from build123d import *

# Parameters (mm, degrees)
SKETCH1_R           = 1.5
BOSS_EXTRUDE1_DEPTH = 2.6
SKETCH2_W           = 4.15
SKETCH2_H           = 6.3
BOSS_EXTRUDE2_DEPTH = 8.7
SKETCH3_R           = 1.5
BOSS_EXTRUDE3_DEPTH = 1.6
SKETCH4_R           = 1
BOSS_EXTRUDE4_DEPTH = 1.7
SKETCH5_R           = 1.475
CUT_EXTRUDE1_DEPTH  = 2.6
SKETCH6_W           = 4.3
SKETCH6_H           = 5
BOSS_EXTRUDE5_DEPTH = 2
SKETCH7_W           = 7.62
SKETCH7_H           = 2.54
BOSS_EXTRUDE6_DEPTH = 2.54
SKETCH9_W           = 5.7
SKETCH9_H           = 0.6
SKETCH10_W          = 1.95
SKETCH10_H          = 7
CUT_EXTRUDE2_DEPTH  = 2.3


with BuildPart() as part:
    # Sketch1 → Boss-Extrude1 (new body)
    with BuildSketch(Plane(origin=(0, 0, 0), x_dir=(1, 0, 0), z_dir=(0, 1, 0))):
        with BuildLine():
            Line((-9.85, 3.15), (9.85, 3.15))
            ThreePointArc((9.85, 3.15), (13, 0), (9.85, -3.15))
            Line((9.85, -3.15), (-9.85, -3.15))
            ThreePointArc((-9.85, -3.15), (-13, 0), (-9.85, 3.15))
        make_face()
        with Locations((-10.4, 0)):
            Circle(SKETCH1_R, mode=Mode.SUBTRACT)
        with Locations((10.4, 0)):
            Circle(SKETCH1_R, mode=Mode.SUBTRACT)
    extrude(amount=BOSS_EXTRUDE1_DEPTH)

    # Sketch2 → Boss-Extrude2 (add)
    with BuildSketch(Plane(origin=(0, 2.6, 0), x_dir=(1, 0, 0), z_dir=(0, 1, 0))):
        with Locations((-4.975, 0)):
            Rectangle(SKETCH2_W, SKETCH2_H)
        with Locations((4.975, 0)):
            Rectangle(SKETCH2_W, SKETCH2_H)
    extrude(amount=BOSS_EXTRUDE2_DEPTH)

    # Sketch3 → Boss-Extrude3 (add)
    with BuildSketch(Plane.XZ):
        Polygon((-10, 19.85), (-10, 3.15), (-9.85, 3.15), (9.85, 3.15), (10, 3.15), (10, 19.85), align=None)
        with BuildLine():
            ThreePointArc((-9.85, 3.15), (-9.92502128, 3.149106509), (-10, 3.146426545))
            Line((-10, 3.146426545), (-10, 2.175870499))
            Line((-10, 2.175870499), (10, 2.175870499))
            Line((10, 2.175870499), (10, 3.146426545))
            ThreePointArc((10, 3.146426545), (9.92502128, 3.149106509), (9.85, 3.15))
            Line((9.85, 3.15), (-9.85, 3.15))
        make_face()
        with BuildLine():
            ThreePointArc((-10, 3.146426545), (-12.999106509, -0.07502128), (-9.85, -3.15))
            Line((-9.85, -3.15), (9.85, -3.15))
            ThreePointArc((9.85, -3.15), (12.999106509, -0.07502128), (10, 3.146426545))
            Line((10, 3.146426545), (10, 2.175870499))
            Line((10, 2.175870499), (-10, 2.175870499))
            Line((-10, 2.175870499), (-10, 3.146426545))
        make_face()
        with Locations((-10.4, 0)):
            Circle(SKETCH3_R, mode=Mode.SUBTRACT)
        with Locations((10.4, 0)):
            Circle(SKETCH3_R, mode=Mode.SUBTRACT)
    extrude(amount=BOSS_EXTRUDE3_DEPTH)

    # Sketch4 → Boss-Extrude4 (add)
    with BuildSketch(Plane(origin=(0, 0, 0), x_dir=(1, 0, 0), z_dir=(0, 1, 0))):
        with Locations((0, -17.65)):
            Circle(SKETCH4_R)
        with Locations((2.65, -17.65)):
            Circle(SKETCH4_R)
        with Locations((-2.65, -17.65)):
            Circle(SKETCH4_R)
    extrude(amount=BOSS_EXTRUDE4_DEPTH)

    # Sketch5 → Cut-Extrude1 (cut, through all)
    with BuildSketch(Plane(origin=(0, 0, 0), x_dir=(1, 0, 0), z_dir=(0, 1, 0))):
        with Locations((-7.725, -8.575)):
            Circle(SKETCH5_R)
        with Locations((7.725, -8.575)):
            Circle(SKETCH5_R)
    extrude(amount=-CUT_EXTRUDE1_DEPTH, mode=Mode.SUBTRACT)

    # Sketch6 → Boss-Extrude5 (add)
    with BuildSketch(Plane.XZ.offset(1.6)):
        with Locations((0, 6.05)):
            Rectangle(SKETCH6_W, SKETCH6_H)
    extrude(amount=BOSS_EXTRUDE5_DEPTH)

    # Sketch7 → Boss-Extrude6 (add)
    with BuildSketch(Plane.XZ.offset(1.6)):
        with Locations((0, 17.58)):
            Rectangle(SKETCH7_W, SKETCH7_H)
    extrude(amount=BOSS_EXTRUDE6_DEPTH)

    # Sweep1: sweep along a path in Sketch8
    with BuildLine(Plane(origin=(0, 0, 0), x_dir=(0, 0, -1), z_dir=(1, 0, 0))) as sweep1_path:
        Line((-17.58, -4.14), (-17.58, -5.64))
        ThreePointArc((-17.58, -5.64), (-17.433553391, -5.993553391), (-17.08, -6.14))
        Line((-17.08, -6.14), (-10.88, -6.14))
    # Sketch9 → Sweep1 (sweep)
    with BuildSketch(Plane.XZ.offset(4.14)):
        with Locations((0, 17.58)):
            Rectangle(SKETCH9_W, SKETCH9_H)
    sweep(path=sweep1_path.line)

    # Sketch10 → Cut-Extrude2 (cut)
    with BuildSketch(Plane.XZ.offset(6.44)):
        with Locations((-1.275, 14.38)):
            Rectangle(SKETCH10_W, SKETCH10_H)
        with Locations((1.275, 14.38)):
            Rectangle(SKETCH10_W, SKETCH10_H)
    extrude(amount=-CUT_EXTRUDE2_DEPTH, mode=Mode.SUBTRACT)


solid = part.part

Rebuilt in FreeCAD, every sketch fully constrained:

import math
import FreeCAD as App
import Part
import Sketcher
Q = App.Units.Quantity

doc = App.newDocument("Part")
body = doc.addObject("PartDesign::Body", "Body")

sketch1 = body.newObject("Sketcher::SketchObject", "Sketch")
sketch1.AttachmentSupport = (doc.getObject("XZ_Plane"), [""])
sketch1.MapMode = "FlatFace"
sketch1.addGeometry([
    Part.LineSegment(App.Vector(9.85, -3.15, 0), App.Vector(-9.85, -3.15, 0)),
    Part.ArcOfCircle(Part.Circle(App.Vector(-9.85, 0, 0), App.Vector(0, 0, 1), 3.15), math.radians(90), math.radians(270)),
    Part.LineSegment(App.Vector(-9.85, 3.15, 0), App.Vector(9.85, 3.15, 0)),
    Part.ArcOfCircle(Part.Circle(App.Vector(9.85, 0, 0), App.Vector(0, 0, 1), 3.15), math.radians(-90), math.radians(90)),
    Part.Circle(App.Vector(10.4, 0, 0), App.Vector(0, 0, 1), 1.5),
    Part.Circle(App.Vector(-10.4, 0, 0), App.Vector(0, 0, 1), 1.5),
], False)
sketch1.addConstraint([
    Sketcher.Constraint("Tangent", 0, 2, 1, 2),
    Sketcher.Constraint("Tangent", 1, 1, 2, 1),
    Sketcher.Constraint("Tangent", 2, 2, 3, 2),
    Sketcher.Constraint("Tangent", 3, 1, 0, 1),
    Sketcher.Constraint("Horizontal", 0),
    Sketcher.Constraint("Horizontal", 2),
    Sketcher.Constraint("Equal", 4, 5),
    Sketcher.Constraint("Symmetric", 1, 3, 3, 3, -1, 1),
    Sketcher.Constraint("Symmetric", 4, 3, 5, 3, -1, 1),
    Sketcher.Constraint("PointOnObject", 4, 3, -1),
    Sketcher.Constraint("Diameter", 4, Q("3 mm")),
    Sketcher.Constraint("Radius", 1, Q("3.15 mm")),
    Sketcher.Constraint("DistanceX", 0, 2, 0, 1, Q("19.7 mm")),
    Sketcher.Constraint("DistanceX", -1, 1, 4, 3, Q("10.4 mm")),
])
pad1 = body.newObject("PartDesign::Pad", "Pad")
pad1.Profile = sketch1
pad1.Length = 2.6
pad1.Reversed = True

sketch2 = body.newObject("Sketcher::SketchObject", "Sketch001")
sketch2.AttachmentSupport = (doc.getObject("XZ_Plane"), [""])
sketch2.MapMode = "FlatFace"
sketch2.AttachmentOffset = App.Placement(App.Vector(0, 0, -2.6), App.Rotation())
sketch2.addGeometry([
    Part.LineSegment(App.Vector(-7.05, -3.15, 0), App.Vector(-7.05, 3.15, 0)),
    Part.LineSegment(App.Vector(-7.05, 3.15, 0), App.Vector(-2.9, 3.15, 0)),
    Part.LineSegment(App.Vector(-2.9, 3.15, 0), App.Vector(-2.9, -3.15, 0)),
    Part.LineSegment(App.Vector(-2.9, -3.15, 0), App.Vector(-7.05, -3.15, 0)),
    Part.LineSegment(App.Vector(2.9, -3.15, 0), App.Vector(2.9, 3.15, 0)),
    Part.LineSegment(App.Vector(2.9, 3.15, 0), App.Vector(7.05, 3.15, 0)),
    Part.LineSegment(App.Vector(7.05, 3.15, 0), App.Vector(7.05, -3.15, 0)),
    Part.LineSegment(App.Vector(7.05, -3.15, 0), App.Vector(2.9, -3.15, 0)),
], False)
sketch2.addConstraint([
    Sketcher.Constraint("Coincident", 0, 2, 1, 1),
    Sketcher.Constraint("Coincident", 1, 2, 2, 1),
    Sketcher.Constraint("Coincident", 2, 2, 3, 1),
    Sketcher.Constraint("Coincident", 3, 2, 0, 1),
    Sketcher.Constraint("Coincident", 4, 2, 5, 1),
    Sketcher.Constraint("Coincident", 5, 2, 6, 1),
    Sketcher.Constraint("Coincident", 6, 2, 7, 1),
    Sketcher.Constraint("Coincident", 7, 2, 4, 1),
    Sketcher.Constraint("Vertical", 0),
    Sketcher.Constraint("Horizontal", 1),
    Sketcher.Constraint("Vertical", 2),
    Sketcher.Constraint("Horizontal", 3),
    Sketcher.Constraint("Vertical", 4),
    Sketcher.Constraint("Horizontal", 5),
    Sketcher.Constraint("Vertical", 6),
    Sketcher.Constraint("Horizontal", 7),
    Sketcher.Constraint("Symmetric", 2, 2, 4, 2, -1, 1),
    Sketcher.Constraint("Symmetric", 0, 2, 6, 2, -1, 1),
    Sketcher.Constraint("Horizontal", 1, 2, 4, 2),
    Sketcher.Constraint("DistanceY", 0, 1, 0, 2, Q("6.3 mm")),
    Sketcher.Constraint("DistanceX", 1, 1, 1, 2, Q("4.15 mm")),
    Sketcher.Constraint("DistanceX", 1, 2, -1, 1, Q("2.9 mm")),
])
pad2 = body.newObject("PartDesign::Pad", "Pad001")
pad2.Profile = sketch2
pad2.Length = 8.7
pad2.Reversed = True

sketch3 = body.newObject("Sketcher::SketchObject", "Sketch002")
sketch3.AttachmentSupport = (doc.getObject("XZ_Plane"), [""])
sketch3.MapMode = "FlatFace"
sketch3.addGeometry([
    Part.LineSegment(App.Vector(-10, 19.85, 0), App.Vector(-10, 3.15, 0)),
    Part.LineSegment(App.Vector(-10, 3.15, 0), App.Vector(-9.85, 3.15, 0)),
    Part.ArcOfCircle(Part.Circle(App.Vector(-9.85, -0.000002, 0), App.Vector(0, 0, 1), 3.150002), math.radians(90.000001), math.radians(92.729401)),
    Part.ArcOfCircle(Part.Circle(App.Vector(-9.85, 0, 0), App.Vector(0, 0, 1), 3.15), math.radians(92.729403), math.radians(270)),
    Part.LineSegment(App.Vector(-9.85, -3.15, 0), App.Vector(9.85, -3.15, 0)),
    Part.ArcOfCircle(Part.Circle(App.Vector(9.85, 0, 0), App.Vector(0, 0, 1), 3.15), math.radians(-90), math.radians(87.270597)),
    Part.ArcOfCircle(Part.Circle(App.Vector(9.85, -0.000002, 0), App.Vector(0, 0, 1), 3.150002), math.radians(87.270599), math.radians(89.999999)),
    Part.LineSegment(App.Vector(9.85, 3.15, 0), App.Vector(10, 3.15, 0)),
    Part.LineSegment(App.Vector(10, 3.15, 0), App.Vector(10, 19.85, 0)),
    Part.LineSegment(App.Vector(10, 19.85, 0), App.Vector(-10, 19.85, 0)),
    Part.Circle(App.Vector(-10.4, 0, 0), App.Vector(0, 0, 1), 1.5),
    Part.Circle(App.Vector(10.4, 0, 0), App.Vector(0, 0, 1), 1.5),
], False)
sketch3.addConstraint([
    Sketcher.Constraint("Coincident", 0, 2, 1, 1),
    Sketcher.Constraint("Tangent", 1, 2, 2, 1),
    Sketcher.Constraint("Tangent", 2, 2, 3, 1),
    Sketcher.Constraint("Tangent", 3, 2, 4, 1),
    Sketcher.Constraint("Tangent", 4, 2, 5, 1),
    Sketcher.Constraint("Tangent", 5, 2, 6, 1),
    Sketcher.Constraint("Tangent", 6, 2, 7, 1),
    Sketcher.Constraint("Coincident", 7, 2, 8, 1),
    Sketcher.Constraint("Coincident", 8, 2, 9, 1),
    Sketcher.Constraint("Coincident", 9, 2, 0, 1),
    Sketcher.Constraint("Vertical", 0),
    Sketcher.Constraint("Horizontal", 1),
    Sketcher.Constraint("Horizontal", 4),
    Sketcher.Constraint("Horizontal", 7),
    Sketcher.Constraint("Vertical", 8),
    Sketcher.Constraint("Horizontal", 9),
    Sketcher.Constraint("Equal", 3, 5),
    Sketcher.Constraint("Equal", 2, 6),
    Sketcher.Constraint("Equal", 10, 11),
    Sketcher.Constraint("Symmetric", 2, 3, 5, 3, -1, 1),
    Sketcher.Constraint("Symmetric", 10, 3, 11, 3, -1, 1),
    Sketcher.Constraint("PointOnObject", 3, 3, -1),
    Sketcher.Constraint("PointOnObject", 10, 3, -1),
    Sketcher.Constraint("Horizontal", 2, 2, 5, 2),
    Sketcher.Constraint("Vertical", 0, 2, 2, 2),
    Sketcher.Constraint("Vertical", 5, 2, 7, 2),
    Sketcher.Constraint("Diameter", 10, Q("3 mm")),
    Sketcher.Constraint("DistanceX", 9, 2, 9, 1, Q("20 mm")),
    Sketcher.Constraint("Radius", 3, Q("3.15 mm")),
    Sketcher.Constraint("DistanceX", 4, 1, 4, 2, Q("19.7 mm")),
    Sketcher.Constraint("DistanceY", 0, 2, 0, 1, Q("16.7 mm")),
    Sketcher.Constraint("DistanceX", 10, 3, -1, 1, Q("10.4 mm")),
])
pad3 = body.newObject("PartDesign::Pad", "Pad002")
pad3.Profile = sketch3
pad3.Length = 1.6

sketch4 = body.newObject("Sketcher::SketchObject", "Sketch003")
sketch4.AttachmentSupport = (doc.getObject("XZ_Plane"), [""])
sketch4.MapMode = "FlatFace"
sketch4.addGeometry([
    Part.Circle(App.Vector(0, 17.65, 0), App.Vector(0, 0, 1), 1),
    Part.Circle(App.Vector(2.65, 17.65, 0), App.Vector(0, 0, 1), 1),
    Part.Circle(App.Vector(-2.65, 17.65, 0), App.Vector(0, 0, 1), 1),
], False)
sketch4.addConstraint([
    Sketcher.Constraint("Equal", 0, 1),
    Sketcher.Constraint("Equal", 1, 2),
    Sketcher.Constraint("Symmetric", 1, 3, 2, 3, -2),
    Sketcher.Constraint("PointOnObject", 0, 3, -2),
    Sketcher.Constraint("Horizontal", 0, 3, 1, 3),
    Sketcher.Constraint("Diameter", 0, Q("2 mm")),
    Sketcher.Constraint("DistanceX", 2, 3, 1, 3, Q("5.3 mm")),
    Sketcher.Constraint("DistanceY", -1, 1, 0, 3, Q("17.65 mm")),
])
pad4 = body.newObject("PartDesign::Pad", "Pad003")
pad4.Profile = sketch4
pad4.Length = 1.7
pad4.Reversed = True

sketch5 = body.newObject("Sketcher::SketchObject", "Sketch004")
sketch5.AttachmentSupport = (doc.getObject("XZ_Plane"), [""])
sketch5.MapMode = "FlatFace"
sketch5.addGeometry([
    Part.Circle(App.Vector(-7.725, 8.575, 0), App.Vector(0, 0, 1), 1.475),
    Part.Circle(App.Vector(7.725, 8.575, 0), App.Vector(0, 0, 1), 1.475),
], False)
sketch5.addConstraint([
    Sketcher.Constraint("Equal", 0, 1),
    Sketcher.Constraint("Symmetric", 0, 3, 1, 3, -2),
    Sketcher.Constraint("Diameter", 0, Q("2.95 mm")),
    Sketcher.Constraint("DistanceX", 0, 3, 1, 3, Q("15.45 mm")),
    Sketcher.Constraint("DistanceY", -1, 1, 0, 3, Q("8.575 mm")),
])
pocket1 = body.newObject("PartDesign::Pocket", "Pocket")
pocket1.Profile = sketch5
pocket1.Type = "ThroughAll"
pocket1.Reversed = True

sketch6 = body.newObject("Sketcher::SketchObject", "Sketch005")
sketch6.AttachmentSupport = (doc.getObject("XZ_Plane"), [""])
sketch6.MapMode = "FlatFace"
sketch6.AttachmentOffset = App.Placement(App.Vector(0, 0, 1.6), App.Rotation())
sketch6.addGeometry([
    Part.LineSegment(App.Vector(-2.15, 8.55, 0), App.Vector(-2.15, 3.55, 0)),
    Part.LineSegment(App.Vector(-2.15, 3.55, 0), App.Vector(2.15, 3.55, 0)),
    Part.LineSegment(App.Vector(2.15, 3.55, 0), App.Vector(2.15, 8.55, 0)),
    Part.LineSegment(App.Vector(2.15, 8.55, 0), App.Vector(-2.15, 8.55, 0)),
], False)
sketch6.addConstraint([
    Sketcher.Constraint("Coincident", 0, 2, 1, 1),
    Sketcher.Constraint("Coincident", 1, 2, 2, 1),
    Sketcher.Constraint("Coincident", 2, 2, 3, 1),
    Sketcher.Constraint("Coincident", 3, 2, 0, 1),
    Sketcher.Constraint("Vertical", 0),
    Sketcher.Constraint("Horizontal", 1),
    Sketcher.Constraint("Vertical", 2),
    Sketcher.Constraint("Horizontal", 3),
    Sketcher.Constraint("DistanceY", 0, 2, 0, 1, Q("5 mm")),
    Sketcher.Constraint("DistanceX", 1, 1, 1, 2, Q("4.3 mm")),
    Sketcher.Constraint("DistanceX", 0, 2, -1, 1, Q("2.15 mm")),
    Sketcher.Constraint("DistanceY", -1, 1, 0, 2, Q("3.55 mm")),
])
pad5 = body.newObject("PartDesign::Pad", "Pad004")
pad5.Profile = sketch6
pad5.Length = 2

sketch7 = body.newObject("Sketcher::SketchObject", "Sketch006")
sketch7.AttachmentSupport = (doc.getObject("XZ_Plane"), [""])
sketch7.MapMode = "FlatFace"
sketch7.AttachmentOffset = App.Placement(App.Vector(0, 0, 1.6), App.Rotation())
sketch7.addGeometry([
    Part.LineSegment(App.Vector(-3.81, 18.85, 0), App.Vector(-3.81, 16.31, 0)),
    Part.LineSegment(App.Vector(-3.81, 16.31, 0), App.Vector(3.81, 16.31, 0)),
    Part.LineSegment(App.Vector(3.81, 16.31, 0), App.Vector(3.81, 18.85, 0)),
    Part.LineSegment(App.Vector(3.81, 18.85, 0), App.Vector(-3.81, 18.85, 0)),
], False)
sketch7.addConstraint([
    Sketcher.Constraint("Coincident", 0, 2, 1, 1),
    Sketcher.Constraint("Coincident", 1, 2, 2, 1),
    Sketcher.Constraint("Coincident", 2, 2, 3, 1),
    Sketcher.Constraint("Coincident", 3, 2, 0, 1),
    Sketcher.Constraint("Vertical", 0),
    Sketcher.Constraint("Horizontal", 1),
    Sketcher.Constraint("Vertical", 2),
    Sketcher.Constraint("Horizontal", 3),
    Sketcher.Constraint("DistanceX", 1, 1, 1, 2, Q("7.62 mm")),
    Sketcher.Constraint("DistanceY", 0, 2, 0, 1, Q("2.54 mm")),
    Sketcher.Constraint("DistanceX", 0, 2, -1, 1, Q("3.81 mm")),
    Sketcher.Constraint("DistanceY", -1, 1, 0, 2, Q("16.31 mm")),
])
pad6 = body.newObject("PartDesign::Pad", "Pad005")
pad6.Profile = sketch7
pad6.Length = 2.54

sketch8 = body.newObject("Sketcher::SketchObject", "Sketch007")
sketch8.AttachmentSupport = (doc.getObject("XZ_Plane"), [""])
sketch8.MapMode = "FlatFace"
sketch8.AttachmentOffset = App.Placement(App.Vector(0, 0, 4.14), App.Rotation())
sketch8.addGeometry([
    Part.LineSegment(App.Vector(-2.85, 17.88, 0), App.Vector(-2.85, 17.28, 0)),
    Part.LineSegment(App.Vector(-2.85, 17.28, 0), App.Vector(2.85, 17.28, 0)),
    Part.LineSegment(App.Vector(2.85, 17.28, 0), App.Vector(2.85, 17.88, 0)),
    Part.LineSegment(App.Vector(2.85, 17.88, 0), App.Vector(-2.85, 17.88, 0)),
], False)
sketch8.addConstraint([
    Sketcher.Constraint("Coincident", 0, 2, 1, 1),
    Sketcher.Constraint("Coincident", 1, 2, 2, 1),
    Sketcher.Constraint("Coincident", 2, 2, 3, 1),
    Sketcher.Constraint("Coincident", 3, 2, 0, 1),
    Sketcher.Constraint("Vertical", 0),
    Sketcher.Constraint("Horizontal", 1),
    Sketcher.Constraint("Vertical", 2),
    Sketcher.Constraint("Horizontal", 3),
    Sketcher.Constraint("DistanceX", 1, 1, 1, 2, Q("5.7 mm")),
    Sketcher.Constraint("DistanceY", 0, 2, 0, 1, Q("0.6 mm")),
    Sketcher.Constraint("DistanceX", 0, 2, -1, 1, Q("2.85 mm")),
    Sketcher.Constraint("DistanceY", -1, 1, 0, 2, Q("17.28 mm")),
])

sketch9 = body.newObject("Sketcher::SketchObject", "Sketch008")
sketch9.AttachmentSupport = (doc.getObject("YZ_Plane"), [""])
sketch9.MapMode = "FlatFace"
sketch9.addGeometry([
    Part.LineSegment(App.Vector(-4.14, 17.58, 0), App.Vector(-5.64, 17.58, 0)),
    Part.ArcOfCircle(Part.Circle(App.Vector(-5.64, 17.08, 0), App.Vector(0, 0, 1), 0.5), math.radians(90), math.radians(180)),
    Part.LineSegment(App.Vector(-6.14, 17.08, 0), App.Vector(-6.14, 10.88, 0)),
], False)
sketch9.addConstraint([
    Sketcher.Constraint("Tangent", 0, 2, 1, 1),
    Sketcher.Constraint("Tangent", 1, 2, 2, 1),
    Sketcher.Constraint("Horizontal", 0),
    Sketcher.Constraint("Vertical", 2),
    Sketcher.Constraint("Radius", 1, Q("0.5 mm")),
    Sketcher.Constraint("DistanceX", 0, 2, 0, 1, Q("1.5 mm")),
    Sketcher.Constraint("DistanceY", 2, 2, 2, 1, Q("6.2 mm")),
    Sketcher.Constraint("DistanceX", 1, 3, -1, 1, Q("5.64 mm")),
    Sketcher.Constraint("DistanceY", -1, 1, 1, 3, Q("17.08 mm")),
])
doc.recompute()

additivepipe = body.newObject("PartDesign::AdditivePipe", "AdditivePipe")
additivepipe.Profile = sketch8
additivepipe.Spine = (sketch9, ["Edge1", "Edge2", "Edge3"])

sketch10 = body.newObject("Sketcher::SketchObject", "Sketch009")
sketch10.AttachmentSupport = (doc.getObject("XZ_Plane"), [""])
sketch10.MapMode = "FlatFace"
sketch10.AttachmentOffset = App.Placement(App.Vector(0, 0, 6.44), App.Rotation())
sketch10.addGeometry([
    Part.LineSegment(App.Vector(-2.25, 17.88, 0), App.Vector(-2.25, 10.88, 0)),
    Part.LineSegment(App.Vector(-2.25, 10.88, 0), App.Vector(-0.3, 10.88, 0)),
    Part.LineSegment(App.Vector(-0.3, 10.88, 0), App.Vector(-0.3, 17.88, 0)),
    Part.LineSegment(App.Vector(-0.3, 17.88, 0), App.Vector(-2.25, 17.88, 0)),
    Part.LineSegment(App.Vector(0.3, 17.88, 0), App.Vector(0.3, 10.88, 0)),
    Part.LineSegment(App.Vector(0.3, 10.88, 0), App.Vector(2.25, 10.88, 0)),
    Part.LineSegment(App.Vector(2.25, 10.88, 0), App.Vector(2.25, 17.88, 0)),
    Part.LineSegment(App.Vector(2.25, 17.88, 0), App.Vector(0.3, 17.88, 0)),
], False)
sketch10.addConstraint([
    Sketcher.Constraint("Coincident", 0, 2, 1, 1),
    Sketcher.Constraint("Coincident", 1, 2, 2, 1),
    Sketcher.Constraint("Coincident", 2, 2, 3, 1),
    Sketcher.Constraint("Coincident", 3, 2, 0, 1),
    Sketcher.Constraint("Coincident", 4, 2, 5, 1),
    Sketcher.Constraint("Coincident", 5, 2, 6, 1),
    Sketcher.Constraint("Coincident", 6, 2, 7, 1),
    Sketcher.Constraint("Coincident", 7, 2, 4, 1),
    Sketcher.Constraint("Vertical", 0),
    Sketcher.Constraint("Horizontal", 1),
    Sketcher.Constraint("Vertical", 2),
    Sketcher.Constraint("Horizontal", 3),
    Sketcher.Constraint("Vertical", 4),
    Sketcher.Constraint("Horizontal", 5),
    Sketcher.Constraint("Vertical", 6),
    Sketcher.Constraint("Horizontal", 7),
    Sketcher.Constraint("Symmetric", 1, 2, 4, 2, -2),
    Sketcher.Constraint("Symmetric", 3, 2, 6, 2, -2),
    Sketcher.Constraint("DistanceY", 0, 2, 0, 1, Q("7 mm")),
    Sketcher.Constraint("DistanceX", 1, 1, 1, 2, Q("1.95 mm")),
    Sketcher.Constraint("DistanceX", 1, 2, -1, 1, Q("0.3 mm")),
    Sketcher.Constraint("DistanceY", -1, 1, 0, 2, Q("10.88 mm")),
])
pocket2 = body.newObject("PartDesign::Pocket", "Pocket001")
pocket2.Profile = sketch10
pocket2.Length = 2.3

doc.recompute()
